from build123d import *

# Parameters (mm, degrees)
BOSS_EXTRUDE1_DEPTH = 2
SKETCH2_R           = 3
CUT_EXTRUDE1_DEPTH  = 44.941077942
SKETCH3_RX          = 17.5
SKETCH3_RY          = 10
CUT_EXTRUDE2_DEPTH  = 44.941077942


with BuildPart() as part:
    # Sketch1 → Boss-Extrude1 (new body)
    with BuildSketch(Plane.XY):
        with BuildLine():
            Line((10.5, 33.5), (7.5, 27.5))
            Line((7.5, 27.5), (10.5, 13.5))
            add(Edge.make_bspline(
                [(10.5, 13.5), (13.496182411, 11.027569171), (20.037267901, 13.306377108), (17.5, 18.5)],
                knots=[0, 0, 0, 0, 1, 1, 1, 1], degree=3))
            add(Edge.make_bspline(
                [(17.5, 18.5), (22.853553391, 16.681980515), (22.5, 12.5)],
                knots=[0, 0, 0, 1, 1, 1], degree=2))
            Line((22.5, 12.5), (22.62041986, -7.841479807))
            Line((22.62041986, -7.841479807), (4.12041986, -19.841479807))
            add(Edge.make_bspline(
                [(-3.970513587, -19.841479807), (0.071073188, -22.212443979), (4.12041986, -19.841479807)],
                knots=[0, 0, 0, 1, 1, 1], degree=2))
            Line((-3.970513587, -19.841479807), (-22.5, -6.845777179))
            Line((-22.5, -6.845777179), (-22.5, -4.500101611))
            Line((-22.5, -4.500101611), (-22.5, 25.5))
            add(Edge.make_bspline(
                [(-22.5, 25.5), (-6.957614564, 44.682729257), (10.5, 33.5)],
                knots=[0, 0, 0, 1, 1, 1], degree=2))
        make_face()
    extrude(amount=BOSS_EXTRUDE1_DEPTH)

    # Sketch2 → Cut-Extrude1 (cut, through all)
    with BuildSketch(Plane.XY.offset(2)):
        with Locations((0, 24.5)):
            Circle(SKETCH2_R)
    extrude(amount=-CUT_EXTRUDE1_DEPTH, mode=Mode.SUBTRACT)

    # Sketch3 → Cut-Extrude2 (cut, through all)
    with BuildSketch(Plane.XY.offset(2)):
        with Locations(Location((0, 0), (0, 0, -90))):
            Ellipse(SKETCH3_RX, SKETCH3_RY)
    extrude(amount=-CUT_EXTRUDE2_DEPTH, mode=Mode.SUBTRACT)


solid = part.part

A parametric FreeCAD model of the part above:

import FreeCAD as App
import Part
import Sketcher
from FreeCAD import Vector
Q = App.Units.Quantity

doc = App.newDocument("Part")
params = doc.addObject("Spreadsheet::Sheet", "Params")
for row, (alias, value) in enumerate([
    ("pad1_length", "2 mm"),
    ("sketch2_diameter", "6 mm"),
], start=1):
    params.set(f"A{row}", alias)
    params.set(f"B{row}", "=" + value)
    params.setAlias(f"B{row}", alias)

body = doc.addObject("PartDesign::Body", "Body")

# Sketch on XY plane
sketch1 = body.newObject("Sketcher::SketchObject", "Sketch")
sketch1.AttachmentSupport = (doc.getObject("XY_Plane"), [""])
sketch1.MapMode = "FlatFace"
sketch1.addGeometry([
    Part.LineSegment(Vector(7.5, 27.5, 0), Vector(10.5, 33.5, 0)),  # 0
    Part.BSplineCurve([Vector(-22.5, 25.5, 0), Vector(-6.957615, 44.682729, 0), Vector(10.5, 33.5, 0)], [3, 3], [0, 1], False, 2, [1, 1, 1], False),  # 1
    Part.LineSegment(Vector(-22.5, 25.5, 0), Vector(-22.5, -6.845777, 0)),  # 2
    Part.LineSegment(Vector(-22.5, -6.845777, 0), Vector(-3.970514, -19.84148, 0)),  # 3
    Part.BSplineCurve([Vector(-3.970514, -19.84148, 0), Vector(0.071073, -22.212444, 0), Vector(4.12042, -19.84148, 0)], [3, 3], [0, 1], False, 2, [1, 1, 1], False),  # 4
    Part.LineSegment(Vector(4.12042, -19.84148, 0), Vector(22.62042, -7.84148, 0)),  # 5
    Part.LineSegment(Vector(22.62042, -7.84148, 0), Vector(22.5, 12.5, 0)),  # 6
    Part.BSplineCurve([Vector(17.5, 18.5, 0), Vector(22.853553, 16.681981, 0), Vector(22.5, 12.5, 0)], [3, 3], [0, 1], False, 2, [1, 1, 1], False),  # 7
    Part.BSplineCurve([Vector(10.5, 13.5, 0), Vector(13.496182, 11.027569, 0), Vector(20.037268, 13.306377, 0), Vector(17.5, 18.5, 0)], [4, 4], [0, 1], False, 3, [1, 1, 1, 1], False),  # 8
    Part.LineSegment(Vector(10.5, 13.5, 0), Vector(7.5, 27.5, 0)),  # 9
], False)
sketch1.addConstraint([
    Sketcher.Constraint("Block", 1),
    Sketcher.Constraint("Block", 4),
    Sketcher.Constraint("Block", 7),
    Sketcher.Constraint("Block", 8),
    Sketcher.Constraint("Coincident", 0, 2, 1, 2),
    Sketcher.Constraint("Coincident", 1, 1, 2, 1),
    Sketcher.Constraint("Coincident", 2, 2, 3, 1),
    Sketcher.Constraint("Coincident", 3, 2, 4, 1),
    Sketcher.Constraint("Coincident", 4, 2, 5, 1),
    Sketcher.Constraint("Coincident", 5, 2, 6, 1),
    Sketcher.Constraint("Coincident", 6, 2, 7, 2),
    Sketcher.Constraint("Coincident", 8, 1, 9, 1),
    Sketcher.Constraint("Coincident", 9, 2, 0, 1),
    Sketcher.Constraint("Vertical", 2),
    Sketcher.Constraint("DistanceY", 3, 2, 5, 2, Q("12 mm")),
    Sketcher.Constraint("DistanceX", 9, 2, 0, 2, Q("3 mm")),
    Sketcher.Constraint("DistanceY", 9, 2, 0, 2, Q("6 mm")),
    Sketcher.Constraint("DistanceY", 2, 2, 2, 1, Q("32.345777 mm")),
    Sketcher.Constraint("DistanceX", -1, 1, 5, 2, Q("22.62042 mm")),
])
pad1 = body.newObject("PartDesign::Pad", "Pad")
pad1.Profile = sketch1
pad1.setExpression("Length", "Params.pad1_length")

# Sketch on XY plane
sketch2 = body.newObject("Sketcher::SketchObject", "Sketch001")
sketch2.AttachmentSupport = (doc.getObject("XY_Plane"), [""])
sketch2.MapMode = "FlatFace"
sketch2.AttachmentOffset = App.Placement(Vector(0, 0, 2), App.Rotation())
sketch2.addGeometry(Part.Circle(Vector(0, 24.5, 0), Vector(0, 0, 1), 3), False)
sketch2.addConstraint([
    Sketcher.Constraint("PointOnObject", 0, 3, -2),
    Sketcher.Constraint("Diameter", 0, Q("6 mm")),
    Sketcher.Constraint("DistanceY", -1, 1, 0, 3, Q("24.5 mm")),
])
sketch2.setExpression("Constraints[1]", "Params.sketch2_diameter")
pocket1 = body.newObject("PartDesign::Pocket", "Pocket")
pocket1.Profile = sketch2
pocket1.Type = "ThroughAll"

# Sketch on XY plane
sketch3 = body.newObject("Sketcher::SketchObject", "Sketch002")
sketch3.AttachmentSupport = (doc.getObject("XY_Plane"), [""])
sketch3.MapMode = "FlatFace"
sketch3.AttachmentOffset = App.Placement(Vector(0, 0, 2), App.Rotation())
sketch3.addGeometry(Part.Ellipse(Vector(0, -17.5, 0), Vector(10, 0, 0), Vector(0, 0, 0)), False)
sketch3.addConstraint(Sketcher.Constraint("Block", 0))
pocket2 = body.newObject("PartDesign::Pocket", "Pocket001")
pocket2.Profile = sketch3
pocket2.Type = "ThroughAll"

doc.recompute()
